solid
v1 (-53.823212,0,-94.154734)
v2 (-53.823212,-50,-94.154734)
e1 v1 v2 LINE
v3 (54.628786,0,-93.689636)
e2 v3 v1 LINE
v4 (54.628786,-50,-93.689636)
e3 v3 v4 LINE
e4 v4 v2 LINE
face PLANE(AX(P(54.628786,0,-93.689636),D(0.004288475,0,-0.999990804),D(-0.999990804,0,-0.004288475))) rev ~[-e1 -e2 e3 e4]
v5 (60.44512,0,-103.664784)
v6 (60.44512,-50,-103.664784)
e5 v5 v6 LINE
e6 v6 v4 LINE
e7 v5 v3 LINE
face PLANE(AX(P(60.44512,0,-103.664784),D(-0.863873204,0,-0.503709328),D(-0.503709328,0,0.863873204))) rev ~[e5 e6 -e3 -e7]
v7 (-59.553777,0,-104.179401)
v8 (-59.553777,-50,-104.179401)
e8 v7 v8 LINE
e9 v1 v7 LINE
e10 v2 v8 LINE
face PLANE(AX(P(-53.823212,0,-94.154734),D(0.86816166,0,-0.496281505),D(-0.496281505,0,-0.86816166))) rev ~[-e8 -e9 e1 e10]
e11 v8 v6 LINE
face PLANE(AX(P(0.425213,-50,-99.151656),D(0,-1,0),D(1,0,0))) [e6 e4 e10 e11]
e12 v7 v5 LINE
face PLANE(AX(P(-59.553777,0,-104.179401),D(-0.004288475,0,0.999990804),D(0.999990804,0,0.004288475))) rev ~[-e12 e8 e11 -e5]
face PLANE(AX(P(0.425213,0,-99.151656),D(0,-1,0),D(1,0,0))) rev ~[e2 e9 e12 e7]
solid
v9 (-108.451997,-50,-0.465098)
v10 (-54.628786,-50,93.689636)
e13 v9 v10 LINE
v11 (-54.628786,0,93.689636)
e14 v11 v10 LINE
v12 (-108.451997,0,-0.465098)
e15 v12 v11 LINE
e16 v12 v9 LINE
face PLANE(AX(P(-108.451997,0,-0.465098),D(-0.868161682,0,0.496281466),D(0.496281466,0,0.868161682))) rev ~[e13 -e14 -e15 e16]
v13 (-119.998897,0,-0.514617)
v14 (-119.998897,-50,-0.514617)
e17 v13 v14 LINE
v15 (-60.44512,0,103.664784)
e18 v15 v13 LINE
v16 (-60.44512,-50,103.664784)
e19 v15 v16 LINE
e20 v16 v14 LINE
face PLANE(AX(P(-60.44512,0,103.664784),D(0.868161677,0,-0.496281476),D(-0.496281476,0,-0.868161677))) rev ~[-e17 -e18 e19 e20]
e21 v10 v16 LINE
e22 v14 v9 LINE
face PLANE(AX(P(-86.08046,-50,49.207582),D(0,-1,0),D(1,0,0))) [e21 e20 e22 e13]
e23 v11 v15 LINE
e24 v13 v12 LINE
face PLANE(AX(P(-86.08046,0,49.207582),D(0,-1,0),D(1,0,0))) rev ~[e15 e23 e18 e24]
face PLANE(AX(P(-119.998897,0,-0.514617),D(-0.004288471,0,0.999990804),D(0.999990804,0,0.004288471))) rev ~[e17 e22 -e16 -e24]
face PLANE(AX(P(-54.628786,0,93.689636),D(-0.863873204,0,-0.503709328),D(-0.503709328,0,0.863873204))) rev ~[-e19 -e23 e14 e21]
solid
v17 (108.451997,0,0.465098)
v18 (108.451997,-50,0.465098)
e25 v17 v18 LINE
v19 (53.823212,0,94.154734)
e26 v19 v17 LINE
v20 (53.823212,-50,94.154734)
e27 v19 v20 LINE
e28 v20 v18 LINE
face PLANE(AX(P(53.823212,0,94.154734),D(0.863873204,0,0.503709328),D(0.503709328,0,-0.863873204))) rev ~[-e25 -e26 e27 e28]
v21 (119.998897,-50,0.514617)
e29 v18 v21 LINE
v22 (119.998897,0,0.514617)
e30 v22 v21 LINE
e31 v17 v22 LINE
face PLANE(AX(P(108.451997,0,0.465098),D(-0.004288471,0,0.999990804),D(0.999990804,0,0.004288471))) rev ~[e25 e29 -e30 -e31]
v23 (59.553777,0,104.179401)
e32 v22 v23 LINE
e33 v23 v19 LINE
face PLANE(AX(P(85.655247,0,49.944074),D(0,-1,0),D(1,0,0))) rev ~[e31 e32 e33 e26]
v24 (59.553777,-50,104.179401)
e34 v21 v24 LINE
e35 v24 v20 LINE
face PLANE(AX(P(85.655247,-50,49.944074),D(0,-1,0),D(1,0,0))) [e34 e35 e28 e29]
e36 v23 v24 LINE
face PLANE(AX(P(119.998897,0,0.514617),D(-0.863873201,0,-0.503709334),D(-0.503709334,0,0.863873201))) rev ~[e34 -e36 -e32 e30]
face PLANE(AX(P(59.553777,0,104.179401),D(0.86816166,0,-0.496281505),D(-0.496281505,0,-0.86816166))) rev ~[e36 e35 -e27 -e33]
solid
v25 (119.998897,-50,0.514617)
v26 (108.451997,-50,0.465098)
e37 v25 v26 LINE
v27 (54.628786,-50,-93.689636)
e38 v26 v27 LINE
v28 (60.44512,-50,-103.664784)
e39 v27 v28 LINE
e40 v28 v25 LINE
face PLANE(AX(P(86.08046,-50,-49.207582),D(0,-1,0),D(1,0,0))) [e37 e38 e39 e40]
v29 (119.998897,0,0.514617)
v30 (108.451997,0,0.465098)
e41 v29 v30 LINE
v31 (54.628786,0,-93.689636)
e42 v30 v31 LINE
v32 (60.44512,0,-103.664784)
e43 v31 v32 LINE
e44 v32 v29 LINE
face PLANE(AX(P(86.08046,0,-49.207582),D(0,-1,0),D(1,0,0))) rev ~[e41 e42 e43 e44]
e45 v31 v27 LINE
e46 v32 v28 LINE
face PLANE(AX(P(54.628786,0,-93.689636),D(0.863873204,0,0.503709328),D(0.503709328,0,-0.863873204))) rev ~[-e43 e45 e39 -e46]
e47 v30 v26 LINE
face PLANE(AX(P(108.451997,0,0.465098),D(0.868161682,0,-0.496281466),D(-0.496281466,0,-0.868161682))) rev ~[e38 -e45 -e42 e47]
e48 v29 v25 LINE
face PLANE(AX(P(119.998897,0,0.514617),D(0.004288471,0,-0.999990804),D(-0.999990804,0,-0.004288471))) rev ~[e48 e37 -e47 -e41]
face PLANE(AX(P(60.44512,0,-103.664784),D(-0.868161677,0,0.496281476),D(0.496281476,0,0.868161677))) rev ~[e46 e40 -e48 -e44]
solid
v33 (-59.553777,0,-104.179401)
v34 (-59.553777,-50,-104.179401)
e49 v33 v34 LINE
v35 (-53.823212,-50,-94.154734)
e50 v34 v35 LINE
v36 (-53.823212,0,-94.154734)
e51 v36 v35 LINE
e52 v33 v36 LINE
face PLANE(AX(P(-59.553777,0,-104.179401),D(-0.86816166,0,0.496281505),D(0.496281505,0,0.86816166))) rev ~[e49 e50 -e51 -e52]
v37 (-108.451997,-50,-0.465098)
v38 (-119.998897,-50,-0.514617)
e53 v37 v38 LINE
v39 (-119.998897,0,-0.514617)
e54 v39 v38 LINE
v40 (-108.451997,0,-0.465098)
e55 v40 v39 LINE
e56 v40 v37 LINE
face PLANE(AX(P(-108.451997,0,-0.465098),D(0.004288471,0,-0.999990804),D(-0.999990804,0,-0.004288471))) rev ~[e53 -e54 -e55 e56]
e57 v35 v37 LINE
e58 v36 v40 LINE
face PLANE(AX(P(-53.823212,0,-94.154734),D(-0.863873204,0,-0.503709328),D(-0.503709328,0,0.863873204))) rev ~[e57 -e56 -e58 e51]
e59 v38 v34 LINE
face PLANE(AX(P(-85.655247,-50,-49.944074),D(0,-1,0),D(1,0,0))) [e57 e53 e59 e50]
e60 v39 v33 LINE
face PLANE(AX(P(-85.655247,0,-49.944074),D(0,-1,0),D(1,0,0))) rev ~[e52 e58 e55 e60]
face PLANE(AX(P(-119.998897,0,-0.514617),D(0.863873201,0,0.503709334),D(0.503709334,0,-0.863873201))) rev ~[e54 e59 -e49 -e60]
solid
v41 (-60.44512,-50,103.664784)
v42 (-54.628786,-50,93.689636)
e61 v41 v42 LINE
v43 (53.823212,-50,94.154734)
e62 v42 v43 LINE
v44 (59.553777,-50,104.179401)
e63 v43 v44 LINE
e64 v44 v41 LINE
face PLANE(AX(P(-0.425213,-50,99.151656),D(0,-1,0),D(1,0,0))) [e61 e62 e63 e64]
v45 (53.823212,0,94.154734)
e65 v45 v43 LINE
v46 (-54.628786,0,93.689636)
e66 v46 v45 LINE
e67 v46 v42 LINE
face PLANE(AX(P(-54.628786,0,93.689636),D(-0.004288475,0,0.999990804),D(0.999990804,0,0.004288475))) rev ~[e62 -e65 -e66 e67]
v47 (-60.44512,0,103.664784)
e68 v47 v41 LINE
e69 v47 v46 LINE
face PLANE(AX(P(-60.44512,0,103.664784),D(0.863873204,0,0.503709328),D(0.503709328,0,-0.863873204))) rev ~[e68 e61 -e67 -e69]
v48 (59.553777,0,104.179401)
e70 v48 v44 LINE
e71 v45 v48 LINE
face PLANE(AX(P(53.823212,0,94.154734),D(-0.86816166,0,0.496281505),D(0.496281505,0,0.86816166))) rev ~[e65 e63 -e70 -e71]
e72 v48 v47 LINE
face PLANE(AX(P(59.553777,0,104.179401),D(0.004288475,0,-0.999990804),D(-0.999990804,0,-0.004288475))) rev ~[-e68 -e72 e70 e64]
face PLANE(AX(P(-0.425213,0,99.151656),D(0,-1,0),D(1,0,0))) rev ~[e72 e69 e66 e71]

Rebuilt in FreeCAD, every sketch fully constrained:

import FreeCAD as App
import Part
import Sketcher

V = App.Vector


def add_polygon(sketch, points):
    """Adds a closed chain of lines whose ends are joined by coincident constraints."""
    first, n = sketch.GeometryCount, len(points)
    for a, b in zip(points, points[1:] + points[:1]):
        sketch.addGeometry(Part.LineSegment(App.Vector(*a, 0), App.Vector(*b, 0)), False)
    for i in range(n):
        sketch.addConstraint(Sketcher.Constraint("Coincident", first + i, 2, first + (i + 1) % n, 1))

doc = App.newDocument("Part")
params = doc.addObject("Spreadsheet::Sheet", "Params")
for row, (alias, value) in enumerate([
    ("sketch1_length", "120 mm"),
    ("pad1_length", "50 mm"),
    ("sketch2_length", "120 mm"),
    ("pad2_length", "50 mm"),
    ("sketch3_length", "120 mm"),
    ("pad3_length", "50 mm"),
    ("sketch4_length", "120 mm"),
    ("pad4_length", "50 mm"),
    ("sketch5_length", "120 mm"),
    ("pad5_length", "50 mm"),
    ("sketch6_length", "120 mm"),
    ("pad6_length", "50 mm"),
], start=1):
    params.set(f"A{row}", alias)
    params.set(f"B{row}", "=" + value)
    params.setAlias(f"B{row}", alias)

body = doc.addObject("PartDesign::Body", "Body")

# Sketch on XZ plane
sketch1 = body.newObject("Sketcher::SketchObject", "Sketch")
sketch1.AttachmentSupport = (doc.getObject("XZ_Plane"), [""])
sketch1.MapMode = "FlatFace"
add_polygon(sketch1, [(60, 104), (-60, 104), (-55, 94), (54, 94)])  # lines 0-3
sketch1.addConstraint(Sketcher.Constraint("Parallel", 0, 2))
sketch1.addConstraint(Sketcher.Constraint("Equal", 1, 3))
sketch1.addConstraint(Sketcher.Constraint("Distance", 0, 120.0))
sketch1.addConstraint(Sketcher.Constraint("DistanceX", 1, 2, 2, 2, 108.451998))
sketch1.addConstraint(Sketcher.Constraint("DistanceY", -1, 1, 3, 2, 104.179401))
sketch1.addConstraint(Sketcher.Constraint("DistanceY", 1, 2, 2, 2, 0.465098))
sketch1.addConstraint(Sketcher.Constraint("DistanceX", 0, 2, -1, 1, 60.44512))
sketch1.addConstraint(Sketcher.Constraint("DistanceX", -1, 1, 2, 2, 53.823212))
sketch1.setExpression("Constraints[6]", "Params.sketch1_length")
pad1 = body.newObject("PartDesign::Pad", "Pad")
pad1.Profile = sketch1
pad1.setExpression("Length", "Params.pad1_length")
body2 = doc.addObject("PartDesign::Body", "Body001")

# Sketch on XZ plane
sketch2 = body2.newObject("Sketcher::SketchObject", "Sketch001")
sketch2.AttachmentSupport = (doc.getObject("XZ_Plane001"), [""])
sketch2.MapMode = "FlatFace"
add_polygon(sketch2, [(-60, 104), (-120, -1), (-108, 0), (-55, 94)])  # lines 0-3
sketch2.addConstraint(Sketcher.Constraint("Parallel", 0, 2))
sketch2.addConstraint(Sketcher.Constraint("Equal", 1, 3))
sketch2.addConstraint(Sketcher.Constraint("Distance", 0, 120.0))
sketch2.addConstraint(Sketcher.Constraint("DistanceX", 0, 2, 1, 2, 11.5469))
sketch2.addConstraint(Sketcher.Constraint("DistanceY", 0, 2, 3, 2, 104.179401))
sketch2.addConstraint(Sketcher.Constraint("DistanceX", 3, 2, -1, 1, 60.44512))
sketch2.addConstraint(Sketcher.Constraint("DistanceY", 0, 2, 1, 2, 0.049519))
sketch2.addConstraint(Sketcher.Constraint("DistanceY", 0, 2, -1, 1, 0.514617))
sketch2.setExpression("Constraints[6]", "Params.sketch2_length")
pad2 = body2.newObject("PartDesign::Pad", "Pad001")
pad2.Profile = sketch2
pad2.setExpression("Length", "Params.pad2_length")
body3 = doc.addObject("PartDesign::Body", "Body002")

# Sketch on XZ plane
sketch3 = body3.newObject("Sketcher::SketchObject", "Sketch002")
sketch3.AttachmentSupport = (doc.getObject("XZ_Plane002"), [""])
sketch3.MapMode = "FlatFace"
add_polygon(sketch3, [(-108, 0), (-120, -1), (-60, -104), (-54, -94)])  # lines 0-3
sketch3.addConstraint(Sketcher.Constraint("Parallel", 1, 3))
sketch3.addConstraint(Sketcher.Constraint("Equal", 0, 2))
sketch3.addConstraint(Sketcher.Constraint("Distance", 1, 120.0))
sketch3.addConstraint(Sketcher.Constraint("DistanceY", 1, 2, -1, 1, 104.179401))
sketch3.addConstraint(Sketcher.Constraint("DistanceX", 0, 2, 3, 2, 11.5469))
sketch3.addConstraint(Sketcher.Constraint("DistanceX", 2, 2, -1, 1, 53.823212))
sketch3.addConstraint(Sketcher.Constraint("DistanceX", 0, 2, 1, 2, 60.44512))
sketch3.addConstraint(Sketcher.Constraint("DistanceY", 0, 2, 3, 2, 0.049519))
sketch3.setExpression("Constraints[6]", "Params.sketch3_length")
pad3 = body3.newObject("PartDesign::Pad", "Pad002")
pad3.Profile = sketch3
pad3.setExpression("Length", "Params.pad3_length")
body4 = doc.addObject("PartDesign::Body", "Body003")

# Sketch on XZ plane
sketch4 = body4.newObject("Sketcher::SketchObject", "Sketch003")
sketch4.AttachmentSupport = (doc.getObject("XZ_Plane003"), [""])
sketch4.MapMode = "FlatFace"
add_polygon(sketch4, [(-54, -94), (-60, -104), (60, -104), (55, -94)])  # lines 0-3
sketch4.addConstraint(Sketcher.Constraint("Parallel", 1, 3))
sketch4.addConstraint(Sketcher.Constraint("Equal", 0, 2))
sketch4.addConstraint(Sketcher.Constraint("Distance", 1, 120.0))
sketch4.addConstraint(Sketcher.Constraint("DistanceX", 3, 2, 2, 2, 108.451998))
sketch4.addConstraint(Sketcher.Constraint("DistanceY", 0, 2, -1, 1, 104.179401))
sketch4.addConstraint(Sketcher.Constraint("DistanceY", 3, 2, 2, 2, 0.465098))
sketch4.addConstraint(Sketcher.Constraint("DistanceX", -1, 1, 1, 2, 60.44512))
sketch4.addConstraint(Sketcher.Constraint("DistanceX", 3, 2, -1, 1, 53.823212))
sketch4.setExpression("Constraints[6]", "Params.sketch4_length")
pad4 = body4.newObject("PartDesign::Pad", "Pad003")
pad4.Profile = sketch4
pad4.setExpression("Length", "Params.pad4_length")
body5 = doc.addObject("PartDesign::Body", "Body004")

# Sketch on XZ plane
sketch5 = body5.newObject("Sketcher::SketchObject", "Sketch004")
sketch5.AttachmentSupport = (doc.getObject("XZ_Plane004"), [""])
sketch5.MapMode = "FlatFace"
add_polygon(sketch5, [(55, -94), (60, -104), (120, 1), (108, 0)])  # lines 0-3
sketch5.addConstraint(Sketcher.Constraint("Parallel", 1, 3))
sketch5.addConstraint(Sketcher.Constraint("Equal", 0, 2))
sketch5.addConstraint(Sketcher.Constraint("Distance", 1, 120.0))
sketch5.addConstraint(Sketcher.Constraint("DistanceY", 0, 2, 1, 2, 104.179401))
sketch5.addConstraint(Sketcher.Constraint("DistanceX", 2, 2, 1, 2, 11.5469))
sketch5.addConstraint(Sketcher.Constraint("DistanceX", -1, 1, 0, 2, 60.44512))
sketch5.addConstraint(Sketcher.Constraint("DistanceY", 2, 2, 1, 2, 0.049519))
sketch5.addConstraint(Sketcher.Constraint("DistanceY", 0, 2, -1, 1, 103.664784))
sketch5.setExpression("Constraints[6]", "Params.sketch5_length")
pad5 = body5.newObject("PartDesign::Pad", "Pad004")
pad5.Profile = sketch5
pad5.setExpression("Length", "Params.pad5_length")
body6 = doc.addObject("PartDesign::Body", "Body005")

# Sketch on XZ plane
sketch6 = body6.newObject("Sketcher::SketchObject", "Sketch005")
sketch6.AttachmentSupport = (doc.getObject("XZ_Plane005"), [""])
sketch6.MapMode = "FlatFace"
add_polygon(sketch6, [(120, 1), (60, 104), (54, 94), (108, 0)])  # lines 0-3
sketch6.addConstraint(Sketcher.Constraint("Parallel", 0, 2))
sketch6.addConstraint(Sketcher.Constraint("Equal", 1, 3))
sketch6.addConstraint(Sketcher.Constraint("Distance", 0, 120.0))
sketch6.addConstraint(Sketcher.Constraint("DistanceY", -1, 1, 0, 2, 104.179401))
sketch6.addConstraint(Sketcher.Constraint("DistanceX", 2, 2, 3, 2, 11.5469))
sketch6.addConstraint(Sketcher.Constraint("DistanceX", -1, 1, 1, 2, 53.823212))
sketch6.addConstraint(Sketcher.Constraint("DistanceX", 0, 2, 2, 2, 48.89822))
sketch6.addConstraint(Sketcher.Constraint("DistanceY", 2, 2, 3, 2, 0.049519))
sketch6.setExpression("Constraints[6]", "Params.sketch6_length")
pad6 = body6.newObject("PartDesign::Pad", "Pad005")
pad6.Profile = sketch6
pad6.setExpression("Length", "Params.pad6_length")

doc.recompute()
